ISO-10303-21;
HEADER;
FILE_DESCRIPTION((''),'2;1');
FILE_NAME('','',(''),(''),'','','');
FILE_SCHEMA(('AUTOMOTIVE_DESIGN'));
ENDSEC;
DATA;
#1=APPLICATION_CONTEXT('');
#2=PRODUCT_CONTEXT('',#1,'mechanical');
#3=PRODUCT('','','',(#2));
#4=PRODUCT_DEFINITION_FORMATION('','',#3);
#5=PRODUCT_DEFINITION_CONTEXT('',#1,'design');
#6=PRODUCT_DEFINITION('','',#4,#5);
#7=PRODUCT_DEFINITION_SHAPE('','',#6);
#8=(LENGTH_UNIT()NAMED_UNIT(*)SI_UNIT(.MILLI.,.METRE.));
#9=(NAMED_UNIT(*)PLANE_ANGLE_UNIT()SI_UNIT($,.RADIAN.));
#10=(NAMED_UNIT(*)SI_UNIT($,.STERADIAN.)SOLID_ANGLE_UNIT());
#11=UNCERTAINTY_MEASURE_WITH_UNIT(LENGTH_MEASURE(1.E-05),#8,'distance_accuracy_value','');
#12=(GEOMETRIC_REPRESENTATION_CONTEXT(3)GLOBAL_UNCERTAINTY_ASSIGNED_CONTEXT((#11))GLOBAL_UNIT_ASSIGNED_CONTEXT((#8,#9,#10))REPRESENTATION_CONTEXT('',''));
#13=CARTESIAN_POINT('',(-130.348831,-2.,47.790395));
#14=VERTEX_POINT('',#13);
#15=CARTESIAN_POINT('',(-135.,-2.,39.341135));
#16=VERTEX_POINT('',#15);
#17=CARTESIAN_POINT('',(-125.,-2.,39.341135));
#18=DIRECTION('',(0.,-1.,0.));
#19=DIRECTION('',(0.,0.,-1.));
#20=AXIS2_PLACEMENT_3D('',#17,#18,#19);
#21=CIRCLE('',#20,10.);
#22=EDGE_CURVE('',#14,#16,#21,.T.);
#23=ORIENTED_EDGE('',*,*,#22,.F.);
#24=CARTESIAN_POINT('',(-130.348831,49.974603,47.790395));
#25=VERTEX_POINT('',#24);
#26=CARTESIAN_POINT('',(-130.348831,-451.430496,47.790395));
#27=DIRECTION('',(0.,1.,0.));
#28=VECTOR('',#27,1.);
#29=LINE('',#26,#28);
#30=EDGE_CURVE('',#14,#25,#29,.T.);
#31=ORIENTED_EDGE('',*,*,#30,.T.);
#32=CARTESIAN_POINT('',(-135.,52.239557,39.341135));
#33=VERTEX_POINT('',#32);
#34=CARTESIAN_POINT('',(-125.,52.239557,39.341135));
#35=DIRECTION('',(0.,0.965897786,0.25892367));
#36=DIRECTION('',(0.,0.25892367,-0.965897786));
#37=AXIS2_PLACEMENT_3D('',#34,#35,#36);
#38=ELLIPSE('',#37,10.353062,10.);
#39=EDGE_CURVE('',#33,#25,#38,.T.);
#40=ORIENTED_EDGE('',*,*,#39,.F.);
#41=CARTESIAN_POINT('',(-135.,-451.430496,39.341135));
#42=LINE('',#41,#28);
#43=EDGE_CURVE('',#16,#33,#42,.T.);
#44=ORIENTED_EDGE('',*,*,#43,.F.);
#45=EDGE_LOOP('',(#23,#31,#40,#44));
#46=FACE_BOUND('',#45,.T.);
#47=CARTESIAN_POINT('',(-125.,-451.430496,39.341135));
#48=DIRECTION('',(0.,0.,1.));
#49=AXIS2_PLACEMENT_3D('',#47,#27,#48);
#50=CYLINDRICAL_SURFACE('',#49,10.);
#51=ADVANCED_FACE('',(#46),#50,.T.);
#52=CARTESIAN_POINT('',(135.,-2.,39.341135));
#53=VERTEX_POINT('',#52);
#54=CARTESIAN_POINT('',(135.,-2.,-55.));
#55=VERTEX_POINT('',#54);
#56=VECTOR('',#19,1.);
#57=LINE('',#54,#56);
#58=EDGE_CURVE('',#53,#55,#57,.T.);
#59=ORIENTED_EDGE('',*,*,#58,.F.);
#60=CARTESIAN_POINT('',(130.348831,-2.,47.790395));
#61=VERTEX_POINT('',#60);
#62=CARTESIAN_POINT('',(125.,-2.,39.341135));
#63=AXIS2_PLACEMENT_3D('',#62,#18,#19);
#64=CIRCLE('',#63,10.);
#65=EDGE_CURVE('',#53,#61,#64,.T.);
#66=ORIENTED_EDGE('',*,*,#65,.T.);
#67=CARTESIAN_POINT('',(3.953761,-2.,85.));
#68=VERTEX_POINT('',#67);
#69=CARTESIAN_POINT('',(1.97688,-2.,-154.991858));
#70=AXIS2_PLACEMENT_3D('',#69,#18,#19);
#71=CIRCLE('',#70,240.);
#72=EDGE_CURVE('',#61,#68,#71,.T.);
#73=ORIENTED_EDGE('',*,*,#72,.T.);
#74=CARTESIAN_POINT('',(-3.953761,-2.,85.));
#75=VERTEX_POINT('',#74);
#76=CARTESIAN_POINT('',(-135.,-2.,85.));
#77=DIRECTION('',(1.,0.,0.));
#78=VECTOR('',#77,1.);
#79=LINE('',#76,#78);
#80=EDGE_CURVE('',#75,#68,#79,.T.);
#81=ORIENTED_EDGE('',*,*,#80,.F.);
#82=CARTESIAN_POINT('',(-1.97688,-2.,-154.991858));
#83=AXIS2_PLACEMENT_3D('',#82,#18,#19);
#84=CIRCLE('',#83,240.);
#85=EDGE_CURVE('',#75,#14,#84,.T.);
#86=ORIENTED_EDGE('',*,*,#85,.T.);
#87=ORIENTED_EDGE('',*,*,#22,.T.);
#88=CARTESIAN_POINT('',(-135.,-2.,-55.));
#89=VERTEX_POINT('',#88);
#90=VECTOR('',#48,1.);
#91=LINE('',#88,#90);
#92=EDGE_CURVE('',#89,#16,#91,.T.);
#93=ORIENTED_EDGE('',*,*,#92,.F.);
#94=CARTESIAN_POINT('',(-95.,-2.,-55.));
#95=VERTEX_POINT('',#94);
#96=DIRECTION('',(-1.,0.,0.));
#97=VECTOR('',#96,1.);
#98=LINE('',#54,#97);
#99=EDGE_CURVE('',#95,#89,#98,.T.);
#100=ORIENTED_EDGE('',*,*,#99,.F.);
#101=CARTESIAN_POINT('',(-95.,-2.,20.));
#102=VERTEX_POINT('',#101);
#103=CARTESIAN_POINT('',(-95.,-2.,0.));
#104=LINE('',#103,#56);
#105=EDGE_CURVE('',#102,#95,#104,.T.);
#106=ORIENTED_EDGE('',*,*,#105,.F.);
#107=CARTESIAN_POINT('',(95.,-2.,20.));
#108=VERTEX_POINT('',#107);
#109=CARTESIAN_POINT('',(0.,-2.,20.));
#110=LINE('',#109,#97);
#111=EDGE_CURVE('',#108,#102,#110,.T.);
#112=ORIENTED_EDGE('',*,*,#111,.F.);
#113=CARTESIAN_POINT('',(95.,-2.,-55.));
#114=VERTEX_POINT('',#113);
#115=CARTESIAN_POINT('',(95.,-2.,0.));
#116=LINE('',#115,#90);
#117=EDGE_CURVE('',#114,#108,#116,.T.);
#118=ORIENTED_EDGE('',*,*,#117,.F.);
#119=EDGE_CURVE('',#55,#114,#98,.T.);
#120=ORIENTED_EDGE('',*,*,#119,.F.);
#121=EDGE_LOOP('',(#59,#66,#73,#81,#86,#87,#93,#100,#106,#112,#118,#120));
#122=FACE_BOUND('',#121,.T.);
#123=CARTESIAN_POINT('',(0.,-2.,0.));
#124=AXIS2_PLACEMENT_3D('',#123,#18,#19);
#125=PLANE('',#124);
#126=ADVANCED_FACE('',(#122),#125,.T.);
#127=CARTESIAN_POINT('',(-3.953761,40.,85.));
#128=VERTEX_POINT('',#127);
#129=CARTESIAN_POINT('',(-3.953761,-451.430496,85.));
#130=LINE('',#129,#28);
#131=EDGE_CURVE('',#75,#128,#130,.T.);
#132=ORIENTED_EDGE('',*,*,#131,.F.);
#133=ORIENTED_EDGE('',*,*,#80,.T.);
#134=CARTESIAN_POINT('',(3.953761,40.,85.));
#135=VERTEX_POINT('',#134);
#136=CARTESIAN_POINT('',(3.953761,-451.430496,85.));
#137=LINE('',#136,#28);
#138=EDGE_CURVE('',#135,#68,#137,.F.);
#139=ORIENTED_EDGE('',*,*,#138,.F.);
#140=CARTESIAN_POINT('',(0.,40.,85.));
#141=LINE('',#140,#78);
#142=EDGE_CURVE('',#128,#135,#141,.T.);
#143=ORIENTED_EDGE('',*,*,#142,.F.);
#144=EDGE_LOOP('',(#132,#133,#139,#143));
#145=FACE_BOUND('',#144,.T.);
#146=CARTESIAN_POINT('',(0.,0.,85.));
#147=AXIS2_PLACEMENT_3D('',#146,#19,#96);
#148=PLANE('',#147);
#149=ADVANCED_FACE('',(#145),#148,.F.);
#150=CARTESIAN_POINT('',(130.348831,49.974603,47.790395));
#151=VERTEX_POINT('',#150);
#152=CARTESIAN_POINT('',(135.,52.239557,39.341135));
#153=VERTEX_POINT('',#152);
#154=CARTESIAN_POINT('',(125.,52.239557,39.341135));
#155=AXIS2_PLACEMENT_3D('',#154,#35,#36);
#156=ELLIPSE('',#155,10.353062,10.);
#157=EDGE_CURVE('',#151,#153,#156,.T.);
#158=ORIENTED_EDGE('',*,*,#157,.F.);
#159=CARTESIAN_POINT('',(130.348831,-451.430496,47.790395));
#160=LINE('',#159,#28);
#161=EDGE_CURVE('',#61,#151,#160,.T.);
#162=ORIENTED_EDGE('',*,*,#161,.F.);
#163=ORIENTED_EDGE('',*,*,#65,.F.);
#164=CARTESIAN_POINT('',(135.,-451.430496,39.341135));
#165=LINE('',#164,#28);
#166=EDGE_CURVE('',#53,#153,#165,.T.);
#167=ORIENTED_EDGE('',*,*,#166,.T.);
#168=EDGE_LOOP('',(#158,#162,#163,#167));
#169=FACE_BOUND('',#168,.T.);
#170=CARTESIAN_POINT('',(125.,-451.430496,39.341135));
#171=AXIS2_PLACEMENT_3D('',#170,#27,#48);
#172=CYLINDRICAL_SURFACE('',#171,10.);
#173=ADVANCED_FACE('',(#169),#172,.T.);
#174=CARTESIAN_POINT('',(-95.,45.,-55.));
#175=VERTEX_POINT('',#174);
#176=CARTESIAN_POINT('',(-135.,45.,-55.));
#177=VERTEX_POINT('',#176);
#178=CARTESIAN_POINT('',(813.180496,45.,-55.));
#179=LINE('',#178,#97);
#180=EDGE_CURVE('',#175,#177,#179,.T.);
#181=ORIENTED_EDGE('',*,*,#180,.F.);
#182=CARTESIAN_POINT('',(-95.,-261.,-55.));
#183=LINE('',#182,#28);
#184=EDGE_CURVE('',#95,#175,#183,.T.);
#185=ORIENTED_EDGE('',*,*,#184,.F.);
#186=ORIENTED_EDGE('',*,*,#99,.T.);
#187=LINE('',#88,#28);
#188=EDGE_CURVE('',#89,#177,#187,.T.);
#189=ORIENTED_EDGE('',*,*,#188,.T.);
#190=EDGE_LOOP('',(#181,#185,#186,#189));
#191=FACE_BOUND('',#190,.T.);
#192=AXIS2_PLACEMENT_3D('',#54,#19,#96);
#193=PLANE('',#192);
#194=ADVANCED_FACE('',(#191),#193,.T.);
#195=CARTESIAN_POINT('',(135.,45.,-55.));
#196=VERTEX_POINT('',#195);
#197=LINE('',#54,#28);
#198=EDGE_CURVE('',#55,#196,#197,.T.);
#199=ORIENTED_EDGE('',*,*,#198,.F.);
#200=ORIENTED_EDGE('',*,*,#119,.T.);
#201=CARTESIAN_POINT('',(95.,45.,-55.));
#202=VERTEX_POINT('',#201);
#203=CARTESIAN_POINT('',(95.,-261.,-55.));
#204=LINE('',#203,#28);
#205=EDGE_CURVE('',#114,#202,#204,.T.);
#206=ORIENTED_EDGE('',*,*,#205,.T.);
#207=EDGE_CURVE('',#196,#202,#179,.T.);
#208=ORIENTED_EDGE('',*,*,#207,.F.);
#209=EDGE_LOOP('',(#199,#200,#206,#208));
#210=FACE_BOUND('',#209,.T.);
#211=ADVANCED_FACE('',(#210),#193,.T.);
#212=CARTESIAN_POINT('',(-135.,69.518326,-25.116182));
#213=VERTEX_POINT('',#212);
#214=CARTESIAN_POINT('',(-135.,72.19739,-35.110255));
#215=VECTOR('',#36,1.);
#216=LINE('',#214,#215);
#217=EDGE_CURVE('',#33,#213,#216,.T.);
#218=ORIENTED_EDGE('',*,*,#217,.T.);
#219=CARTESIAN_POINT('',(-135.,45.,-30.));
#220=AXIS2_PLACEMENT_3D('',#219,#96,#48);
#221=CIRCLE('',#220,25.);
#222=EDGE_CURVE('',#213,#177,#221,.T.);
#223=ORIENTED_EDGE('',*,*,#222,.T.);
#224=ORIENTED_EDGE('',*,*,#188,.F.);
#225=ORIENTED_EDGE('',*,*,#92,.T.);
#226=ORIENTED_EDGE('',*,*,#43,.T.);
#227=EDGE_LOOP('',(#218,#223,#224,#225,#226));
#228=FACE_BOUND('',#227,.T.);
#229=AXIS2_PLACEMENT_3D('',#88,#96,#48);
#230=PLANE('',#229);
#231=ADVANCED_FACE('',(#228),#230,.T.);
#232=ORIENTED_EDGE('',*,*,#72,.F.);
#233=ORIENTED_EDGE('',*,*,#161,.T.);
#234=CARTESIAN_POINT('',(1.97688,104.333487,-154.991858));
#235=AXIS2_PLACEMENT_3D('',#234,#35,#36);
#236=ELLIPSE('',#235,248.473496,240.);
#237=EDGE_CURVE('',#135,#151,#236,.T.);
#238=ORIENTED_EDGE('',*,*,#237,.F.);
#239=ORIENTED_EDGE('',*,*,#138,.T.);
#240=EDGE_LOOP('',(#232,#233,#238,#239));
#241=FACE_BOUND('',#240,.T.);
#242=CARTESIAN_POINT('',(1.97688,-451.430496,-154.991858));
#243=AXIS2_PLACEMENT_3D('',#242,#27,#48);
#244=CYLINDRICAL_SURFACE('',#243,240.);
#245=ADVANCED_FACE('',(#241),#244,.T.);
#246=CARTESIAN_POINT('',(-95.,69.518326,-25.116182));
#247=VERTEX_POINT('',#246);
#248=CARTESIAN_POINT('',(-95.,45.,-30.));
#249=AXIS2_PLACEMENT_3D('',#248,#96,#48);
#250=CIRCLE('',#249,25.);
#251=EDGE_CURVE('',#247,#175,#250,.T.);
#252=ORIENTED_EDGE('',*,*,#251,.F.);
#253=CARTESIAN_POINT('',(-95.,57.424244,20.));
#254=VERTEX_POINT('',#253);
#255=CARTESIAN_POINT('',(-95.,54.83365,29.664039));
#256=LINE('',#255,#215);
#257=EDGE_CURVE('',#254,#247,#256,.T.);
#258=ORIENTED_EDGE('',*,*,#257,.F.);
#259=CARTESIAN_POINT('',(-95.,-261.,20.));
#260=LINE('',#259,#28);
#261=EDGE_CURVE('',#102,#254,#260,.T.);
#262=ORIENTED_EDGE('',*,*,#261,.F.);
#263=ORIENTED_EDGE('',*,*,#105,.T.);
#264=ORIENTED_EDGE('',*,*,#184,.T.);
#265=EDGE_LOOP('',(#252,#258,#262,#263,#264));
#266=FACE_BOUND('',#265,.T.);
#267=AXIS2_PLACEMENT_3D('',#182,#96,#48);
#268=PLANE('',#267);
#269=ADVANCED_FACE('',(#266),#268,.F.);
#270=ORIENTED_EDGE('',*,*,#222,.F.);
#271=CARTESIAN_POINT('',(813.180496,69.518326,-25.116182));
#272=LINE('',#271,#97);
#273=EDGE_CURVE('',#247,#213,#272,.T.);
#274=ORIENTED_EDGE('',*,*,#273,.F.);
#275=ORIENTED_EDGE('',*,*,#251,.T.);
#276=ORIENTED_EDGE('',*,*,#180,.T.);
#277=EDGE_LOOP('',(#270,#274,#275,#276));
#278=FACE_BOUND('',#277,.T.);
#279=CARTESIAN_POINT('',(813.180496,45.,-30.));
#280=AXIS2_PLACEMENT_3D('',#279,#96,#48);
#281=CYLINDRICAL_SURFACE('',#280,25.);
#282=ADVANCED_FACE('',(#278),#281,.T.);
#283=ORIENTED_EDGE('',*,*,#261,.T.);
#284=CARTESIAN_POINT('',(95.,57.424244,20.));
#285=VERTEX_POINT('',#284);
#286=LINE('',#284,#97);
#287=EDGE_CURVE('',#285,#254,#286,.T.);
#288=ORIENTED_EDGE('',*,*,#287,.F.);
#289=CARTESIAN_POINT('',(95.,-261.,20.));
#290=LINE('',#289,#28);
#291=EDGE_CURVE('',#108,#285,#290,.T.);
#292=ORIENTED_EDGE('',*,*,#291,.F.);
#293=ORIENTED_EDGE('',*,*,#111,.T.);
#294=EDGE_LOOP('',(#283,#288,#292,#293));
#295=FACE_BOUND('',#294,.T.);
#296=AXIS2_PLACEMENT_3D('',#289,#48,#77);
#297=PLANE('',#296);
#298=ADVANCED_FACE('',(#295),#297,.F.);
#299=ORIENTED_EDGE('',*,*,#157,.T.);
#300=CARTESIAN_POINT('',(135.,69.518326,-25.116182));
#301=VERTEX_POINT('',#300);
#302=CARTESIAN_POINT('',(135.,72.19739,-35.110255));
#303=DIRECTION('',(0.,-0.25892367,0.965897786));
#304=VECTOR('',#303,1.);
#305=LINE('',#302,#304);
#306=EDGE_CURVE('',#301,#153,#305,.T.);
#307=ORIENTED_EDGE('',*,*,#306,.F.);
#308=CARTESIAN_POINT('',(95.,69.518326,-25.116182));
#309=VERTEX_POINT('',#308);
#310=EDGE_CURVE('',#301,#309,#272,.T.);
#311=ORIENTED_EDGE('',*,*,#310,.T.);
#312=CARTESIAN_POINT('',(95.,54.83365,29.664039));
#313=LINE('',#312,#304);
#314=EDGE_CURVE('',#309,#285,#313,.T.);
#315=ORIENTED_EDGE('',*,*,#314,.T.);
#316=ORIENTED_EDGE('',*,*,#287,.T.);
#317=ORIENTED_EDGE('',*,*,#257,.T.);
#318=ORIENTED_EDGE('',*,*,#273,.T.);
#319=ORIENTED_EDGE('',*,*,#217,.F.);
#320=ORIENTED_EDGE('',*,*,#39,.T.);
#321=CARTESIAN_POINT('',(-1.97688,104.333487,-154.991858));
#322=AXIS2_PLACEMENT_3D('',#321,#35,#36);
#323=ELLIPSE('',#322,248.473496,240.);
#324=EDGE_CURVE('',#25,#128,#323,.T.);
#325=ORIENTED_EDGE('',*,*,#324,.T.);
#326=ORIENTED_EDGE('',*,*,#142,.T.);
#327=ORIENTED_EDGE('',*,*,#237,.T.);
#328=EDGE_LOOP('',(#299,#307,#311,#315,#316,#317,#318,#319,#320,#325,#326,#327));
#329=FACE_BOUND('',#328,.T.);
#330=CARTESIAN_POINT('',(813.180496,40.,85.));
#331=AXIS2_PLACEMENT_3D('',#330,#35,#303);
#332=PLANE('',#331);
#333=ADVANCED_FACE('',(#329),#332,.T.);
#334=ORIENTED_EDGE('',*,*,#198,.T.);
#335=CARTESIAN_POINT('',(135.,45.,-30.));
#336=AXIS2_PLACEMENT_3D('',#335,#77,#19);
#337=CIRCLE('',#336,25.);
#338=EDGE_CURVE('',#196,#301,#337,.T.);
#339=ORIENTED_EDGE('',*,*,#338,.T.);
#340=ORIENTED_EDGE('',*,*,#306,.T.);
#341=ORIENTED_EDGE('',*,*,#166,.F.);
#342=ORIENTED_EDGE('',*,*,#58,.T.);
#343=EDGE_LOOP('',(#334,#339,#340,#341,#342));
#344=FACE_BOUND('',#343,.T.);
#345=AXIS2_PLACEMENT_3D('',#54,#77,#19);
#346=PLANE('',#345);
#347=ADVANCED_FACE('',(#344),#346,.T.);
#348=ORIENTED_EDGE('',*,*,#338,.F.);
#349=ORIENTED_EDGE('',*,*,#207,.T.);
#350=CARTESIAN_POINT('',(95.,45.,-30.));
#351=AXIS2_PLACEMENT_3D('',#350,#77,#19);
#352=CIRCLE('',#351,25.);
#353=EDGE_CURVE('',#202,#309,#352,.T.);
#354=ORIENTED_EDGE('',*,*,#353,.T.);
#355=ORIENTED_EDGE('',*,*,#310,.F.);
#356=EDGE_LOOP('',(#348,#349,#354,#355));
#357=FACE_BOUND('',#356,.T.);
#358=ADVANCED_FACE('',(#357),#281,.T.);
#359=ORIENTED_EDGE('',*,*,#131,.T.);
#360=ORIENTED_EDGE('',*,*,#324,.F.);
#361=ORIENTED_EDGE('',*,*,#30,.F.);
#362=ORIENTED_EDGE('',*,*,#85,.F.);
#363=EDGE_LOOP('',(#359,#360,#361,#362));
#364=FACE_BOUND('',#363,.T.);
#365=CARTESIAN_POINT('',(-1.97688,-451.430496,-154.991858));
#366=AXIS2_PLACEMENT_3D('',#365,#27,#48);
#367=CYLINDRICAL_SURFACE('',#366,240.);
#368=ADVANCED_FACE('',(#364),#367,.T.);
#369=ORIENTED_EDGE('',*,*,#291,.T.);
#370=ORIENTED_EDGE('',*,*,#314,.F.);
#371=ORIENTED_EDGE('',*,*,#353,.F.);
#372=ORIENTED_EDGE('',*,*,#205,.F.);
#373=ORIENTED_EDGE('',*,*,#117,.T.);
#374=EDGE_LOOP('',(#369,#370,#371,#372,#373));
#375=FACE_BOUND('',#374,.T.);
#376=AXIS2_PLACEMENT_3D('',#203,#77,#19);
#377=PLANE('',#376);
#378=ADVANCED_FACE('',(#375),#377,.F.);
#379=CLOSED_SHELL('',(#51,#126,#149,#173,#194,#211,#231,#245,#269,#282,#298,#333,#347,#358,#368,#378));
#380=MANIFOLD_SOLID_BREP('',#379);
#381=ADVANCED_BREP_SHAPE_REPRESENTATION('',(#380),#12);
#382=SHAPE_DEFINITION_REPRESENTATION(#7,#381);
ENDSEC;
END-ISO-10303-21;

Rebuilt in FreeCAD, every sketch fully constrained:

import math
import FreeCAD as App
import Part
import Sketcher

V = App.Vector

doc = App.newDocument("Part")
body = doc.addObject("PartDesign::Body", "Body")

sketch1 = body.newObject("Sketcher::SketchObject", "Sketch")
sketch1.AttachmentSupport = (doc.getObject("XZ_Plane"), [""])
sketch1.MapMode = "FlatFace"
sketch1.addGeometry([
    Part.LineSegment(V(-135, -55, 0), V(-135, 55, 0)),
    Part.LineSegment(V(-135, 55, 0), V(135, 55, 0)),
    Part.LineSegment(V(135, 55, 0), V(135, -55, 0)),
    Part.LineSegment(V(135, -55, 0), V(-135, -55, 0)),
], False)
sketch1.addConstraint([
    Sketcher.Constraint("Coincident", 0, 2, 1, 1),
    Sketcher.Constraint("Coincident", 1, 2, 2, 1),
    Sketcher.Constraint("Coincident", 2, 2, 3, 1),
    Sketcher.Constraint("Coincident", 3, 2, 0, 1),
    Sketcher.Constraint("Vertical", 0),
    Sketcher.Constraint("Horizontal", 1),
    Sketcher.Constraint("Vertical", 2),
    Sketcher.Constraint("Horizontal", 3),
    Sketcher.Constraint("Symmetric", 0, 2, 2, 2, -1, 1),
    Sketcher.Constraint("DistanceX", 1, 1, 1, 2, 270.0),
    Sketcher.Constraint("DistanceY", 0, 1, 0, 2, 110.0),
])
pad1 = body.newObject("PartDesign::Pad", "Pad")
pad1.Profile = sketch1
pad1.Type = "TwoLengths"
pad1.Length = 70
pad1.Length2 = 2
pad1.Reversed = True

sketch2 = body.newObject("Sketcher::SketchObject", "Sketch001")
sketch2.AttachmentSupport = (doc.getObject("XZ_Plane"), [""])
sketch2.MapMode = "FlatFace"
sketch2.AttachmentOffset = App.Placement(V(0, 0, -70), App.Rotation())
sketch2.addGeometry([
    Part.LineSegment(V(-95, -55, 0), V(-95, 20, 0)),
    Part.LineSegment(V(-95, 20, 0), V(95, 20, 0)),
    Part.LineSegment(V(95, 20, 0), V(95, -55, 0)),
    Part.LineSegment(V(95, -55, 0), V(-95, -55, 0)),
], False)
sketch2.addConstraint([
    Sketcher.Constraint("Coincident", 0, 2, 1, 1),
    Sketcher.Constraint("Coincident", 1, 2, 2, 1),
    Sketcher.Constraint("Coincident", 2, 2, 3, 1),
    Sketcher.Constraint("Coincident", 3, 2, 0, 1),
    Sketcher.Constraint("Vertical", 0),
    Sketcher.Constraint("Horizontal", 1),
    Sketcher.Constraint("Vertical", 2),
    Sketcher.Constraint("Horizontal", 3),
    Sketcher.Constraint("DistanceX", 1, 1, 1, 2, 190.0),
    Sketcher.Constraint("DistanceY", 0, 1, 0, 2, 75.0),
    Sketcher.Constraint("DistanceX", 0, 2, -1, 1, 95.0),
    Sketcher.Constraint("DistanceY", -1, 1, 0, 2, 20.0),
])
pocket1 = body.newObject("PartDesign::Pocket", "Pocket")
pocket1.Profile = sketch2
pocket1.Length = 331
pocket1.Reversed = True

sketch3 = body.newObject("Sketcher::SketchObject", "Sketch002")
sketch3.AttachmentSupport = (doc.getObject("XY_Plane"), [""])
sketch3.MapMode = "FlatFace"
sketch3.AttachmentOffset = App.Placement(V(0, 0, 55), App.Rotation())
sketch3.addGeometry([
    Part.LineSegment(V(-135, 70, 0), V(-135, -2, 0)),
    Part.LineSegment(V(-135, -2, 0), V(135, -2, 0)),
    Part.LineSegment(V(135, -2, 0), V(135, 70, 0)),
    Part.LineSegment(V(135, 70, 0), V(-135, 70, 0)),
], False)
sketch3.addConstraint([
    Sketcher.Constraint("Coincident", 0, 2, 1, 1),
    Sketcher.Constraint("Coincident", 1, 2, 2, 1),
    Sketcher.Constraint("Coincident", 2, 2, 3, 1),
    Sketcher.Constraint("Coincident", 3, 2, 0, 1),
    Sketcher.Constraint("Vertical", 0),
    Sketcher.Constraint("Horizontal", 1),
    Sketcher.Constraint("Vertical", 2),
    Sketcher.Constraint("Horizontal", 3),
    Sketcher.Constraint("DistanceX", 1, 1, 1, 2, 270.0),
    Sketcher.Constraint("DistanceY", 0, 2, 0, 1, 72.0),
    Sketcher.Constraint("DistanceX", 0, 2, -1, 1, 135.0),
    Sketcher.Constraint("DistanceY", 0, 2, -1, 1, 2.0),
])
pad2 = body.newObject("PartDesign::Pad", "Pad001")
pad2.Profile = sketch3
pad2.Length = 30

sketch4 = body.newObject("Sketcher::SketchObject", "Sketch003")
sketch4.AttachmentSupport = (doc.getObject("YZ_Plane"), [""])
sketch4.MapMode = "FlatFace"
sketch4.AttachmentOffset = App.Placement(V(0, 0, 135), App.Rotation())
sketch4.addGeometry([
    Part.LineSegment(V(-39, 380, 0), V(40, 85, 0)),
    Part.LineSegment(V(40, 85, 0), V(70, -25, 0)),
    Part.ArcOfCircle(Part.Circle(V(45, -30, 0), V(0, 0, 1), 25), math.radians(-90), math.radians(11)),
    Part.LineSegment(V(45, -55, 0), V(-260, -55, 0)),
    Part.LineSegment(V(-260, -55, 0), V(284, -332, 0)),
    Part.LineSegment(V(284, -332, 0), V(505, 103, 0)),
    Part.LineSegment(V(505, 103, 0), V(-39, 380, 0)),
], False)
sketch4.addConstraint([
    Sketcher.Constraint("Coincident", 0, 2, 1, 1),
    Sketcher.Constraint("Coincident", 1, 2, 2, 2),
    Sketcher.Constraint("Tangent", 2, 1, 3, 1),
    Sketcher.Constraint("Coincident", 3, 2, 4, 1),
    Sketcher.Constraint("Coincident", 4, 2, 5, 1),
    Sketcher.Constraint("Coincident", 5, 2, 6, 1),
    Sketcher.Constraint("Coincident", 6, 2, 0, 1),
    Sketcher.Constraint("Horizontal", 3),
    Sketcher.Constraint("Parallel", 0, 1),
    Sketcher.Constraint("Perpendicular", 4, 5),
    Sketcher.Constraint("Perpendicular", 5, 6),
    Sketcher.Constraint("Equal", 4, 6),
    Sketcher.Constraint("Radius", 2, 25.0),
    Sketcher.Constraint("DistanceX", -1, 1, 2, 3, 45.0),
    Sketcher.Constraint("DistanceY", 2, 3, -1, 1, 30.0),
    Sketcher.Constraint("DistanceX", -1, 1, 0, 2, 40.0),
    Sketcher.Constraint("DistanceY", -1, 1, 0, 2, 85.0),
    Sketcher.Constraint("DistanceX", 3, 2, 3, 1, 305.357411),
    Sketcher.Constraint("Distance", 0, 305.357411),
    Sketcher.Constraint("Distance", 1, 114.00397),
    Sketcher.Constraint("Distance", 4, 610.714821),
])
pocket2 = body.newObject("PartDesign::Pocket", "Pocket001")
pocket2.Profile = sketch4
pocket2.Type = "ThroughAll"
pocket2.Midplane = True

sketch5 = body.newObject("Sketcher::SketchObject", "Sketch004")
sketch5.AttachmentSupport = (doc.getObject("XZ_Plane"), [""])
sketch5.MapMode = "FlatFace"
sketch5.AttachmentOffset = App.Placement(V(0, 0, 2), App.Rotation())
sketch5.addGeometry([
    Part.ArcOfCircle(Part.Circle(V(1.97688, -154.991858, 0), V(0, 0, 1), 240), math.radians(57.664014), math.radians(89.528049)),
    Part.ArcOfCircle(Part.Circle(V(125, 39.341135, 0), V(0, 0, 1), 10), math.radians(0), math.radians(57.664014)),
    Part.LineSegment(V(135, 39.341135, 0), V(135, 85, 0)),
    Part.LineSegment(V(135, 85, 0), V(3.953761, 85, 0)),
    Part.ArcOfCircle(Part.Circle(V(-1.97688, -154.991858, 0), V(0, 0, 1), 240), math.radians(90.471951), math.radians(122.335986)),
    Part.LineSegment(V(-3.953761, 85, 0), V(-135, 85, 0)),
    Part.LineSegment(V(-135, 85, 0), V(-135, 39.341135, 0)),
    Part.ArcOfCircle(Part.Circle(V(-125, 39.341135, 0), V(0, 0, 1), 10), math.radians(122.335986), math.radians(180)),
], False)
sketch5.addConstraint([
    Sketcher.Constraint("Tangent", 0, 1, 1, 2),
    Sketcher.Constraint("Tangent", 1, 1, 2, 1),
    Sketcher.Constraint("Coincident", 2, 2, 3, 1),
    Sketcher.Constraint("Coincident", 3, 2, 0, 2),
    Sketcher.Constraint("Coincident", 4, 1, 5, 1),
    Sketcher.Constraint("Coincident", 5, 2, 6, 1),
    Sketcher.Constraint("Tangent", 6, 2, 7, 2),
    Sketcher.Constraint("Tangent", 7, 1, 4, 2),
    Sketcher.Constraint("Vertical", 2),
    Sketcher.Constraint("Horizontal", 3),
    Sketcher.Constraint("Horizontal", 5),
    Sketcher.Constraint("Vertical", 6),
    Sketcher.Constraint("Equal", 0, 4),
    Sketcher.Constraint("Equal", 1, 7),
    Sketcher.Constraint("Symmetric", 0, 3, 4, 3, -2),
    Sketcher.Constraint("Symmetric", 2, 2, 5, 2, -2),
    Sketcher.Constraint("Radius", 0, 240.0),
    Sketcher.Constraint("Radius", 1, 10.0),
    Sketcher.Constraint("DistanceX", -1, 1, 1, 3, 125.0),
    Sketcher.Constraint("DistanceY", -1, 1, 2, 2, 85.0),
    Sketcher.Constraint("DistanceX", 3, 2, 3, 1, 131.046239),
    Sketcher.Constraint("DistanceY", 2, 1, 2, 2, 45.658865),
])
pocket3 = body.newObject("PartDesign::Pocket", "Pocket002")
pocket3.Profile = sketch5
pocket3.Type = "ThroughAll"
pocket3.Midplane = True

doc.recompute()
